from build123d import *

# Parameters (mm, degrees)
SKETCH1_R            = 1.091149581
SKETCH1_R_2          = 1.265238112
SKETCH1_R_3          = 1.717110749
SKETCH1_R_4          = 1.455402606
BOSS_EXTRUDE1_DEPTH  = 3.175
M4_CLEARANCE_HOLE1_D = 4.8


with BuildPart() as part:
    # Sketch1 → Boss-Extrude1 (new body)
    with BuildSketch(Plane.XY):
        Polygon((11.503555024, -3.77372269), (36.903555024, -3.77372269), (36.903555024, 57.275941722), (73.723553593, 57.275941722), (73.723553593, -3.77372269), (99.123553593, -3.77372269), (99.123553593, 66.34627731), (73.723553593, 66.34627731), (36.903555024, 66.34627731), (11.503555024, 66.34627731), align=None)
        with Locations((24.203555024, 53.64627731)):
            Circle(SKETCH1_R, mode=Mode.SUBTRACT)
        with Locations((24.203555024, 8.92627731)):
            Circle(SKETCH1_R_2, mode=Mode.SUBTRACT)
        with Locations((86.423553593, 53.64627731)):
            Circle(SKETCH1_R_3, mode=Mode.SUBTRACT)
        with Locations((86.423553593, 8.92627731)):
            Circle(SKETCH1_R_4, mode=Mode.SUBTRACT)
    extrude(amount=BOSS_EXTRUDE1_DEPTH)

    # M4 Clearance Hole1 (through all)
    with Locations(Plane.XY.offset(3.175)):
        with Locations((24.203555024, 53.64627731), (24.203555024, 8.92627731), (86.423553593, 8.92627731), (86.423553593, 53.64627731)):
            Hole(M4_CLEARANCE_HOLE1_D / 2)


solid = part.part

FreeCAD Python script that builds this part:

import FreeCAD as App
import Part
import Sketcher

V = App.Vector
Q = App.Units.Quantity

doc = App.newDocument("Part")
params = doc.addObject("Spreadsheet::Sheet", "Params")
for row, (alias, value) in enumerate([
    ("sketch1_width", "1 in"),
    ("pad1_length", "0.125 in"),
    ("hole_diameter", "4.8 mm"),
], start=1):
    params.set(f"A{row}", alias)
    params.set(f"B{row}", "=" + value)
    params.setAlias(f"B{row}", alias)

body = doc.addObject("PartDesign::Body", "Body")

# Sketch on XY plane
sketch1 = body.newObject("Sketcher::SketchObject", "Sketch")
sketch1.AttachmentSupport = (doc.getObject("XY_Plane"), [""])
sketch1.MapMode = "FlatFace"
sketch1.addGeometry(Part.LineSegment(V(11.5, -3.8, 0), V(36.9, -3.8, 0)), False)
sketch1.addGeometry(Part.LineSegment(V(36.9, -3.8, 0), V(36.9, 57.3, 0)), False)
sketch1.addGeometry(Part.LineSegment(V(36.9, 57.3, 0), V(73.7, 57.3, 0)), False)
sketch1.addGeometry(Part.LineSegment(V(73.7, 57.3, 0), V(73.7, -3.8, 0)), False)
sketch1.addGeometry(Part.LineSegment(V(73.7, -3.8, 0), V(99.1, -3.8, 0)), False)
sketch1.addGeometry(Part.LineSegment(V(99.1, -3.8, 0), V(99.1, 66.3, 0)), False)
sketch1.addGeometry(Part.LineSegment(V(99.1, 66.3, 0), V(11.5, 66.3, 0)), False)
sketch1.addGeometry(Part.LineSegment(V(11.5, 66.3, 0), V(11.5, -3.8, 0)), False)
sketch1.addGeometry(Part.Circle(V(24.2, 8.9, 0), V(0, 0, 1), 1.3), False)
sketch1.addGeometry(Part.Circle(V(86.4, 8.9, 0), V(0, 0, 1), 1.5), False)
sketch1.addGeometry(Part.Circle(V(24.2, 53.6, 0), V(0, 0, 1), 1.1), False)
sketch1.addGeometry(Part.Circle(V(86.4, 53.6, 0), V(0, 0, 1), 1.7), False)
sketch1.addConstraint(Sketcher.Constraint("Coincident", 0, 2, 1, 1))
sketch1.addConstraint(Sketcher.Constraint("Coincident", 1, 2, 2, 1))
sketch1.addConstraint(Sketcher.Constraint("Coincident", 2, 2, 3, 1))
sketch1.addConstraint(Sketcher.Constraint("Coincident", 3, 2, 4, 1))
sketch1.addConstraint(Sketcher.Constraint("Coincident", 4, 2, 5, 1))
sketch1.addConstraint(Sketcher.Constraint("Coincident", 5, 2, 6, 1))
sketch1.addConstraint(Sketcher.Constraint("Coincident", 6, 2, 7, 1))
sketch1.addConstraint(Sketcher.Constraint("Coincident", 7, 2, 0, 1))
sketch1.addConstraint(Sketcher.Constraint("Horizontal", 0))
sketch1.addConstraint(Sketcher.Constraint("Vertical", 1))
sketch1.addConstraint(Sketcher.Constraint("Horizontal", 2))
sketch1.addConstraint(Sketcher.Constraint("Vertical", 3))
sketch1.addConstraint(Sketcher.Constraint("Horizontal", 4))
sketch1.addConstraint(Sketcher.Constraint("Vertical", 5))
sketch1.addConstraint(Sketcher.Constraint("Horizontal", 6))
sketch1.addConstraint(Sketcher.Constraint("Vertical", 7))
sketch1.addConstraint(Sketcher.Constraint("Horizontal", 8, 3, 9, 3))
sketch1.addConstraint(Sketcher.Constraint("Horizontal", 10, 3, 11, 3))
sketch1.addConstraint(Sketcher.Constraint("Horizontal", 0, 2, 3, 2))
sketch1.addConstraint(Sketcher.Constraint("Vertical", 8, 3, 10, 3))
sketch1.addConstraint(Sketcher.Constraint("Vertical", 9, 3, 11, 3))
sketch1.addConstraint(Sketcher.Constraint("Equal", 0, 4))
sketch1.addConstraint(Sketcher.Constraint("DistanceX", 0, 1, 0, 2, Q("1 in")))
sketch1.addConstraint(Sketcher.Constraint("DistanceX", 8, 3, 0, 2, Q("0.5 in")))
sketch1.addConstraint(Sketcher.Constraint("DistanceY", 0, 2, 8, 3, Q("0.5 in")))
sketch1.addConstraint(Sketcher.Constraint("DistanceX", 2, 2, 11, 3, Q("0.5 in")))
sketch1.addConstraint(Sketcher.Constraint("DistanceY", 11, 3, 5, 2, Q("0.5 in")))
sketch1.addConstraint(Sketcher.Constraint("Diameter", 10, 2.182299))
sketch1.addConstraint(Sketcher.Constraint("Diameter", 11, 3.434221))
sketch1.addConstraint(Sketcher.Constraint("Diameter", 8, 2.530476))
sketch1.addConstraint(Sketcher.Constraint("Diameter", 9, 2.910805))
sketch1.addConstraint(Sketcher.Constraint("DistanceX", 2, 1, 2, 2, 36.819999))
sketch1.addConstraint(Sketcher.Constraint("DistanceY", 5, 1, 5, 2, 70.12))
sketch1.addConstraint(Sketcher.Constraint("DistanceY", 10, 3, 1, 2, Q("0.1429002 in")))
sketch1.addConstraint(Sketcher.Constraint("DistanceY", -1, 1, 1, 2, 57.275942))
sketch1.addConstraint(Sketcher.Constraint("DistanceX", -1, 1, 8, 3, 24.203555))
sketch1.setExpression("Constraints[22]", "Params.sketch1_width")
pad1 = body.newObject("PartDesign::Pad", "Pad")
pad1.Profile = sketch1
pad1.setExpression("Length", "Params.pad1_length")

# Sketch on XY plane
sketch2 = body.newObject("Sketcher::SketchObject", "Sketch001")
sketch2.AttachmentSupport = (doc.getObject("XY_Plane"), [""])
sketch2.MapMode = "FlatFace"
sketch2.AttachmentOffset = App.Placement(V(0, 0, 0.125 * 25.4), App.Rotation())
sketch2.addGeometry(Part.Circle(V(24.2, 53.6, 0), V(0, 0, 1), 2.4), False)
sketch2.addGeometry(Part.Circle(V(24.2, 8.9, 0), V(0, 0, 1), 2.4), False)
sketch2.addGeometry(Part.Circle(V(86.4, 8.9, 0), V(0, 0, 1), 2.4), False)
sketch2.addGeometry(Part.Circle(V(86.4, 53.6, 0), V(0, 0, 1), 2.4), False)
sketch2.addConstraint(Sketcher.Constraint("Equal", 0, 1))
sketch2.addConstraint(Sketcher.Constraint("Equal", 1, 2))
sketch2.addConstraint(Sketcher.Constraint("Equal", 2, 3))
sketch2.addConstraint(Sketcher.Constraint("Horizontal", 1, 3, 2, 3))
sketch2.addConstraint(Sketcher.Constraint("Horizontal", 0, 3, 3, 3))
sketch2.addConstraint(Sketcher.Constraint("Vertical", 0, 3, 1, 3))
sketch2.addConstraint(Sketcher.Constraint("Vertical", 2, 3, 3, 3))
sketch2.addConstraint(Sketcher.Constraint("Diameter", 0, 4.8))
sketch2.addConstraint(Sketcher.Constraint("DistanceY", 1, 3, 0, 3, 44.72))
sketch2.addConstraint(Sketcher.Constraint("DistanceX", 1, 3, 2, 3, 62.219999))
sketch2.addConstraint(Sketcher.Constraint("DistanceX", -1, 1, 0, 3, 24.203555))
sketch2.addConstraint(Sketcher.Constraint("DistanceY", -1, 1, 0, 3, 53.646277))
doc.recompute()
hole = body.newObject("PartDesign::Hole", "Hole")
hole.Profile = sketch2
hole.ThreadType = "None"
hole.setExpression("Diameter", "Params.hole_diameter")
hole.DepthType = "ThroughAll"

doc.recompute()
